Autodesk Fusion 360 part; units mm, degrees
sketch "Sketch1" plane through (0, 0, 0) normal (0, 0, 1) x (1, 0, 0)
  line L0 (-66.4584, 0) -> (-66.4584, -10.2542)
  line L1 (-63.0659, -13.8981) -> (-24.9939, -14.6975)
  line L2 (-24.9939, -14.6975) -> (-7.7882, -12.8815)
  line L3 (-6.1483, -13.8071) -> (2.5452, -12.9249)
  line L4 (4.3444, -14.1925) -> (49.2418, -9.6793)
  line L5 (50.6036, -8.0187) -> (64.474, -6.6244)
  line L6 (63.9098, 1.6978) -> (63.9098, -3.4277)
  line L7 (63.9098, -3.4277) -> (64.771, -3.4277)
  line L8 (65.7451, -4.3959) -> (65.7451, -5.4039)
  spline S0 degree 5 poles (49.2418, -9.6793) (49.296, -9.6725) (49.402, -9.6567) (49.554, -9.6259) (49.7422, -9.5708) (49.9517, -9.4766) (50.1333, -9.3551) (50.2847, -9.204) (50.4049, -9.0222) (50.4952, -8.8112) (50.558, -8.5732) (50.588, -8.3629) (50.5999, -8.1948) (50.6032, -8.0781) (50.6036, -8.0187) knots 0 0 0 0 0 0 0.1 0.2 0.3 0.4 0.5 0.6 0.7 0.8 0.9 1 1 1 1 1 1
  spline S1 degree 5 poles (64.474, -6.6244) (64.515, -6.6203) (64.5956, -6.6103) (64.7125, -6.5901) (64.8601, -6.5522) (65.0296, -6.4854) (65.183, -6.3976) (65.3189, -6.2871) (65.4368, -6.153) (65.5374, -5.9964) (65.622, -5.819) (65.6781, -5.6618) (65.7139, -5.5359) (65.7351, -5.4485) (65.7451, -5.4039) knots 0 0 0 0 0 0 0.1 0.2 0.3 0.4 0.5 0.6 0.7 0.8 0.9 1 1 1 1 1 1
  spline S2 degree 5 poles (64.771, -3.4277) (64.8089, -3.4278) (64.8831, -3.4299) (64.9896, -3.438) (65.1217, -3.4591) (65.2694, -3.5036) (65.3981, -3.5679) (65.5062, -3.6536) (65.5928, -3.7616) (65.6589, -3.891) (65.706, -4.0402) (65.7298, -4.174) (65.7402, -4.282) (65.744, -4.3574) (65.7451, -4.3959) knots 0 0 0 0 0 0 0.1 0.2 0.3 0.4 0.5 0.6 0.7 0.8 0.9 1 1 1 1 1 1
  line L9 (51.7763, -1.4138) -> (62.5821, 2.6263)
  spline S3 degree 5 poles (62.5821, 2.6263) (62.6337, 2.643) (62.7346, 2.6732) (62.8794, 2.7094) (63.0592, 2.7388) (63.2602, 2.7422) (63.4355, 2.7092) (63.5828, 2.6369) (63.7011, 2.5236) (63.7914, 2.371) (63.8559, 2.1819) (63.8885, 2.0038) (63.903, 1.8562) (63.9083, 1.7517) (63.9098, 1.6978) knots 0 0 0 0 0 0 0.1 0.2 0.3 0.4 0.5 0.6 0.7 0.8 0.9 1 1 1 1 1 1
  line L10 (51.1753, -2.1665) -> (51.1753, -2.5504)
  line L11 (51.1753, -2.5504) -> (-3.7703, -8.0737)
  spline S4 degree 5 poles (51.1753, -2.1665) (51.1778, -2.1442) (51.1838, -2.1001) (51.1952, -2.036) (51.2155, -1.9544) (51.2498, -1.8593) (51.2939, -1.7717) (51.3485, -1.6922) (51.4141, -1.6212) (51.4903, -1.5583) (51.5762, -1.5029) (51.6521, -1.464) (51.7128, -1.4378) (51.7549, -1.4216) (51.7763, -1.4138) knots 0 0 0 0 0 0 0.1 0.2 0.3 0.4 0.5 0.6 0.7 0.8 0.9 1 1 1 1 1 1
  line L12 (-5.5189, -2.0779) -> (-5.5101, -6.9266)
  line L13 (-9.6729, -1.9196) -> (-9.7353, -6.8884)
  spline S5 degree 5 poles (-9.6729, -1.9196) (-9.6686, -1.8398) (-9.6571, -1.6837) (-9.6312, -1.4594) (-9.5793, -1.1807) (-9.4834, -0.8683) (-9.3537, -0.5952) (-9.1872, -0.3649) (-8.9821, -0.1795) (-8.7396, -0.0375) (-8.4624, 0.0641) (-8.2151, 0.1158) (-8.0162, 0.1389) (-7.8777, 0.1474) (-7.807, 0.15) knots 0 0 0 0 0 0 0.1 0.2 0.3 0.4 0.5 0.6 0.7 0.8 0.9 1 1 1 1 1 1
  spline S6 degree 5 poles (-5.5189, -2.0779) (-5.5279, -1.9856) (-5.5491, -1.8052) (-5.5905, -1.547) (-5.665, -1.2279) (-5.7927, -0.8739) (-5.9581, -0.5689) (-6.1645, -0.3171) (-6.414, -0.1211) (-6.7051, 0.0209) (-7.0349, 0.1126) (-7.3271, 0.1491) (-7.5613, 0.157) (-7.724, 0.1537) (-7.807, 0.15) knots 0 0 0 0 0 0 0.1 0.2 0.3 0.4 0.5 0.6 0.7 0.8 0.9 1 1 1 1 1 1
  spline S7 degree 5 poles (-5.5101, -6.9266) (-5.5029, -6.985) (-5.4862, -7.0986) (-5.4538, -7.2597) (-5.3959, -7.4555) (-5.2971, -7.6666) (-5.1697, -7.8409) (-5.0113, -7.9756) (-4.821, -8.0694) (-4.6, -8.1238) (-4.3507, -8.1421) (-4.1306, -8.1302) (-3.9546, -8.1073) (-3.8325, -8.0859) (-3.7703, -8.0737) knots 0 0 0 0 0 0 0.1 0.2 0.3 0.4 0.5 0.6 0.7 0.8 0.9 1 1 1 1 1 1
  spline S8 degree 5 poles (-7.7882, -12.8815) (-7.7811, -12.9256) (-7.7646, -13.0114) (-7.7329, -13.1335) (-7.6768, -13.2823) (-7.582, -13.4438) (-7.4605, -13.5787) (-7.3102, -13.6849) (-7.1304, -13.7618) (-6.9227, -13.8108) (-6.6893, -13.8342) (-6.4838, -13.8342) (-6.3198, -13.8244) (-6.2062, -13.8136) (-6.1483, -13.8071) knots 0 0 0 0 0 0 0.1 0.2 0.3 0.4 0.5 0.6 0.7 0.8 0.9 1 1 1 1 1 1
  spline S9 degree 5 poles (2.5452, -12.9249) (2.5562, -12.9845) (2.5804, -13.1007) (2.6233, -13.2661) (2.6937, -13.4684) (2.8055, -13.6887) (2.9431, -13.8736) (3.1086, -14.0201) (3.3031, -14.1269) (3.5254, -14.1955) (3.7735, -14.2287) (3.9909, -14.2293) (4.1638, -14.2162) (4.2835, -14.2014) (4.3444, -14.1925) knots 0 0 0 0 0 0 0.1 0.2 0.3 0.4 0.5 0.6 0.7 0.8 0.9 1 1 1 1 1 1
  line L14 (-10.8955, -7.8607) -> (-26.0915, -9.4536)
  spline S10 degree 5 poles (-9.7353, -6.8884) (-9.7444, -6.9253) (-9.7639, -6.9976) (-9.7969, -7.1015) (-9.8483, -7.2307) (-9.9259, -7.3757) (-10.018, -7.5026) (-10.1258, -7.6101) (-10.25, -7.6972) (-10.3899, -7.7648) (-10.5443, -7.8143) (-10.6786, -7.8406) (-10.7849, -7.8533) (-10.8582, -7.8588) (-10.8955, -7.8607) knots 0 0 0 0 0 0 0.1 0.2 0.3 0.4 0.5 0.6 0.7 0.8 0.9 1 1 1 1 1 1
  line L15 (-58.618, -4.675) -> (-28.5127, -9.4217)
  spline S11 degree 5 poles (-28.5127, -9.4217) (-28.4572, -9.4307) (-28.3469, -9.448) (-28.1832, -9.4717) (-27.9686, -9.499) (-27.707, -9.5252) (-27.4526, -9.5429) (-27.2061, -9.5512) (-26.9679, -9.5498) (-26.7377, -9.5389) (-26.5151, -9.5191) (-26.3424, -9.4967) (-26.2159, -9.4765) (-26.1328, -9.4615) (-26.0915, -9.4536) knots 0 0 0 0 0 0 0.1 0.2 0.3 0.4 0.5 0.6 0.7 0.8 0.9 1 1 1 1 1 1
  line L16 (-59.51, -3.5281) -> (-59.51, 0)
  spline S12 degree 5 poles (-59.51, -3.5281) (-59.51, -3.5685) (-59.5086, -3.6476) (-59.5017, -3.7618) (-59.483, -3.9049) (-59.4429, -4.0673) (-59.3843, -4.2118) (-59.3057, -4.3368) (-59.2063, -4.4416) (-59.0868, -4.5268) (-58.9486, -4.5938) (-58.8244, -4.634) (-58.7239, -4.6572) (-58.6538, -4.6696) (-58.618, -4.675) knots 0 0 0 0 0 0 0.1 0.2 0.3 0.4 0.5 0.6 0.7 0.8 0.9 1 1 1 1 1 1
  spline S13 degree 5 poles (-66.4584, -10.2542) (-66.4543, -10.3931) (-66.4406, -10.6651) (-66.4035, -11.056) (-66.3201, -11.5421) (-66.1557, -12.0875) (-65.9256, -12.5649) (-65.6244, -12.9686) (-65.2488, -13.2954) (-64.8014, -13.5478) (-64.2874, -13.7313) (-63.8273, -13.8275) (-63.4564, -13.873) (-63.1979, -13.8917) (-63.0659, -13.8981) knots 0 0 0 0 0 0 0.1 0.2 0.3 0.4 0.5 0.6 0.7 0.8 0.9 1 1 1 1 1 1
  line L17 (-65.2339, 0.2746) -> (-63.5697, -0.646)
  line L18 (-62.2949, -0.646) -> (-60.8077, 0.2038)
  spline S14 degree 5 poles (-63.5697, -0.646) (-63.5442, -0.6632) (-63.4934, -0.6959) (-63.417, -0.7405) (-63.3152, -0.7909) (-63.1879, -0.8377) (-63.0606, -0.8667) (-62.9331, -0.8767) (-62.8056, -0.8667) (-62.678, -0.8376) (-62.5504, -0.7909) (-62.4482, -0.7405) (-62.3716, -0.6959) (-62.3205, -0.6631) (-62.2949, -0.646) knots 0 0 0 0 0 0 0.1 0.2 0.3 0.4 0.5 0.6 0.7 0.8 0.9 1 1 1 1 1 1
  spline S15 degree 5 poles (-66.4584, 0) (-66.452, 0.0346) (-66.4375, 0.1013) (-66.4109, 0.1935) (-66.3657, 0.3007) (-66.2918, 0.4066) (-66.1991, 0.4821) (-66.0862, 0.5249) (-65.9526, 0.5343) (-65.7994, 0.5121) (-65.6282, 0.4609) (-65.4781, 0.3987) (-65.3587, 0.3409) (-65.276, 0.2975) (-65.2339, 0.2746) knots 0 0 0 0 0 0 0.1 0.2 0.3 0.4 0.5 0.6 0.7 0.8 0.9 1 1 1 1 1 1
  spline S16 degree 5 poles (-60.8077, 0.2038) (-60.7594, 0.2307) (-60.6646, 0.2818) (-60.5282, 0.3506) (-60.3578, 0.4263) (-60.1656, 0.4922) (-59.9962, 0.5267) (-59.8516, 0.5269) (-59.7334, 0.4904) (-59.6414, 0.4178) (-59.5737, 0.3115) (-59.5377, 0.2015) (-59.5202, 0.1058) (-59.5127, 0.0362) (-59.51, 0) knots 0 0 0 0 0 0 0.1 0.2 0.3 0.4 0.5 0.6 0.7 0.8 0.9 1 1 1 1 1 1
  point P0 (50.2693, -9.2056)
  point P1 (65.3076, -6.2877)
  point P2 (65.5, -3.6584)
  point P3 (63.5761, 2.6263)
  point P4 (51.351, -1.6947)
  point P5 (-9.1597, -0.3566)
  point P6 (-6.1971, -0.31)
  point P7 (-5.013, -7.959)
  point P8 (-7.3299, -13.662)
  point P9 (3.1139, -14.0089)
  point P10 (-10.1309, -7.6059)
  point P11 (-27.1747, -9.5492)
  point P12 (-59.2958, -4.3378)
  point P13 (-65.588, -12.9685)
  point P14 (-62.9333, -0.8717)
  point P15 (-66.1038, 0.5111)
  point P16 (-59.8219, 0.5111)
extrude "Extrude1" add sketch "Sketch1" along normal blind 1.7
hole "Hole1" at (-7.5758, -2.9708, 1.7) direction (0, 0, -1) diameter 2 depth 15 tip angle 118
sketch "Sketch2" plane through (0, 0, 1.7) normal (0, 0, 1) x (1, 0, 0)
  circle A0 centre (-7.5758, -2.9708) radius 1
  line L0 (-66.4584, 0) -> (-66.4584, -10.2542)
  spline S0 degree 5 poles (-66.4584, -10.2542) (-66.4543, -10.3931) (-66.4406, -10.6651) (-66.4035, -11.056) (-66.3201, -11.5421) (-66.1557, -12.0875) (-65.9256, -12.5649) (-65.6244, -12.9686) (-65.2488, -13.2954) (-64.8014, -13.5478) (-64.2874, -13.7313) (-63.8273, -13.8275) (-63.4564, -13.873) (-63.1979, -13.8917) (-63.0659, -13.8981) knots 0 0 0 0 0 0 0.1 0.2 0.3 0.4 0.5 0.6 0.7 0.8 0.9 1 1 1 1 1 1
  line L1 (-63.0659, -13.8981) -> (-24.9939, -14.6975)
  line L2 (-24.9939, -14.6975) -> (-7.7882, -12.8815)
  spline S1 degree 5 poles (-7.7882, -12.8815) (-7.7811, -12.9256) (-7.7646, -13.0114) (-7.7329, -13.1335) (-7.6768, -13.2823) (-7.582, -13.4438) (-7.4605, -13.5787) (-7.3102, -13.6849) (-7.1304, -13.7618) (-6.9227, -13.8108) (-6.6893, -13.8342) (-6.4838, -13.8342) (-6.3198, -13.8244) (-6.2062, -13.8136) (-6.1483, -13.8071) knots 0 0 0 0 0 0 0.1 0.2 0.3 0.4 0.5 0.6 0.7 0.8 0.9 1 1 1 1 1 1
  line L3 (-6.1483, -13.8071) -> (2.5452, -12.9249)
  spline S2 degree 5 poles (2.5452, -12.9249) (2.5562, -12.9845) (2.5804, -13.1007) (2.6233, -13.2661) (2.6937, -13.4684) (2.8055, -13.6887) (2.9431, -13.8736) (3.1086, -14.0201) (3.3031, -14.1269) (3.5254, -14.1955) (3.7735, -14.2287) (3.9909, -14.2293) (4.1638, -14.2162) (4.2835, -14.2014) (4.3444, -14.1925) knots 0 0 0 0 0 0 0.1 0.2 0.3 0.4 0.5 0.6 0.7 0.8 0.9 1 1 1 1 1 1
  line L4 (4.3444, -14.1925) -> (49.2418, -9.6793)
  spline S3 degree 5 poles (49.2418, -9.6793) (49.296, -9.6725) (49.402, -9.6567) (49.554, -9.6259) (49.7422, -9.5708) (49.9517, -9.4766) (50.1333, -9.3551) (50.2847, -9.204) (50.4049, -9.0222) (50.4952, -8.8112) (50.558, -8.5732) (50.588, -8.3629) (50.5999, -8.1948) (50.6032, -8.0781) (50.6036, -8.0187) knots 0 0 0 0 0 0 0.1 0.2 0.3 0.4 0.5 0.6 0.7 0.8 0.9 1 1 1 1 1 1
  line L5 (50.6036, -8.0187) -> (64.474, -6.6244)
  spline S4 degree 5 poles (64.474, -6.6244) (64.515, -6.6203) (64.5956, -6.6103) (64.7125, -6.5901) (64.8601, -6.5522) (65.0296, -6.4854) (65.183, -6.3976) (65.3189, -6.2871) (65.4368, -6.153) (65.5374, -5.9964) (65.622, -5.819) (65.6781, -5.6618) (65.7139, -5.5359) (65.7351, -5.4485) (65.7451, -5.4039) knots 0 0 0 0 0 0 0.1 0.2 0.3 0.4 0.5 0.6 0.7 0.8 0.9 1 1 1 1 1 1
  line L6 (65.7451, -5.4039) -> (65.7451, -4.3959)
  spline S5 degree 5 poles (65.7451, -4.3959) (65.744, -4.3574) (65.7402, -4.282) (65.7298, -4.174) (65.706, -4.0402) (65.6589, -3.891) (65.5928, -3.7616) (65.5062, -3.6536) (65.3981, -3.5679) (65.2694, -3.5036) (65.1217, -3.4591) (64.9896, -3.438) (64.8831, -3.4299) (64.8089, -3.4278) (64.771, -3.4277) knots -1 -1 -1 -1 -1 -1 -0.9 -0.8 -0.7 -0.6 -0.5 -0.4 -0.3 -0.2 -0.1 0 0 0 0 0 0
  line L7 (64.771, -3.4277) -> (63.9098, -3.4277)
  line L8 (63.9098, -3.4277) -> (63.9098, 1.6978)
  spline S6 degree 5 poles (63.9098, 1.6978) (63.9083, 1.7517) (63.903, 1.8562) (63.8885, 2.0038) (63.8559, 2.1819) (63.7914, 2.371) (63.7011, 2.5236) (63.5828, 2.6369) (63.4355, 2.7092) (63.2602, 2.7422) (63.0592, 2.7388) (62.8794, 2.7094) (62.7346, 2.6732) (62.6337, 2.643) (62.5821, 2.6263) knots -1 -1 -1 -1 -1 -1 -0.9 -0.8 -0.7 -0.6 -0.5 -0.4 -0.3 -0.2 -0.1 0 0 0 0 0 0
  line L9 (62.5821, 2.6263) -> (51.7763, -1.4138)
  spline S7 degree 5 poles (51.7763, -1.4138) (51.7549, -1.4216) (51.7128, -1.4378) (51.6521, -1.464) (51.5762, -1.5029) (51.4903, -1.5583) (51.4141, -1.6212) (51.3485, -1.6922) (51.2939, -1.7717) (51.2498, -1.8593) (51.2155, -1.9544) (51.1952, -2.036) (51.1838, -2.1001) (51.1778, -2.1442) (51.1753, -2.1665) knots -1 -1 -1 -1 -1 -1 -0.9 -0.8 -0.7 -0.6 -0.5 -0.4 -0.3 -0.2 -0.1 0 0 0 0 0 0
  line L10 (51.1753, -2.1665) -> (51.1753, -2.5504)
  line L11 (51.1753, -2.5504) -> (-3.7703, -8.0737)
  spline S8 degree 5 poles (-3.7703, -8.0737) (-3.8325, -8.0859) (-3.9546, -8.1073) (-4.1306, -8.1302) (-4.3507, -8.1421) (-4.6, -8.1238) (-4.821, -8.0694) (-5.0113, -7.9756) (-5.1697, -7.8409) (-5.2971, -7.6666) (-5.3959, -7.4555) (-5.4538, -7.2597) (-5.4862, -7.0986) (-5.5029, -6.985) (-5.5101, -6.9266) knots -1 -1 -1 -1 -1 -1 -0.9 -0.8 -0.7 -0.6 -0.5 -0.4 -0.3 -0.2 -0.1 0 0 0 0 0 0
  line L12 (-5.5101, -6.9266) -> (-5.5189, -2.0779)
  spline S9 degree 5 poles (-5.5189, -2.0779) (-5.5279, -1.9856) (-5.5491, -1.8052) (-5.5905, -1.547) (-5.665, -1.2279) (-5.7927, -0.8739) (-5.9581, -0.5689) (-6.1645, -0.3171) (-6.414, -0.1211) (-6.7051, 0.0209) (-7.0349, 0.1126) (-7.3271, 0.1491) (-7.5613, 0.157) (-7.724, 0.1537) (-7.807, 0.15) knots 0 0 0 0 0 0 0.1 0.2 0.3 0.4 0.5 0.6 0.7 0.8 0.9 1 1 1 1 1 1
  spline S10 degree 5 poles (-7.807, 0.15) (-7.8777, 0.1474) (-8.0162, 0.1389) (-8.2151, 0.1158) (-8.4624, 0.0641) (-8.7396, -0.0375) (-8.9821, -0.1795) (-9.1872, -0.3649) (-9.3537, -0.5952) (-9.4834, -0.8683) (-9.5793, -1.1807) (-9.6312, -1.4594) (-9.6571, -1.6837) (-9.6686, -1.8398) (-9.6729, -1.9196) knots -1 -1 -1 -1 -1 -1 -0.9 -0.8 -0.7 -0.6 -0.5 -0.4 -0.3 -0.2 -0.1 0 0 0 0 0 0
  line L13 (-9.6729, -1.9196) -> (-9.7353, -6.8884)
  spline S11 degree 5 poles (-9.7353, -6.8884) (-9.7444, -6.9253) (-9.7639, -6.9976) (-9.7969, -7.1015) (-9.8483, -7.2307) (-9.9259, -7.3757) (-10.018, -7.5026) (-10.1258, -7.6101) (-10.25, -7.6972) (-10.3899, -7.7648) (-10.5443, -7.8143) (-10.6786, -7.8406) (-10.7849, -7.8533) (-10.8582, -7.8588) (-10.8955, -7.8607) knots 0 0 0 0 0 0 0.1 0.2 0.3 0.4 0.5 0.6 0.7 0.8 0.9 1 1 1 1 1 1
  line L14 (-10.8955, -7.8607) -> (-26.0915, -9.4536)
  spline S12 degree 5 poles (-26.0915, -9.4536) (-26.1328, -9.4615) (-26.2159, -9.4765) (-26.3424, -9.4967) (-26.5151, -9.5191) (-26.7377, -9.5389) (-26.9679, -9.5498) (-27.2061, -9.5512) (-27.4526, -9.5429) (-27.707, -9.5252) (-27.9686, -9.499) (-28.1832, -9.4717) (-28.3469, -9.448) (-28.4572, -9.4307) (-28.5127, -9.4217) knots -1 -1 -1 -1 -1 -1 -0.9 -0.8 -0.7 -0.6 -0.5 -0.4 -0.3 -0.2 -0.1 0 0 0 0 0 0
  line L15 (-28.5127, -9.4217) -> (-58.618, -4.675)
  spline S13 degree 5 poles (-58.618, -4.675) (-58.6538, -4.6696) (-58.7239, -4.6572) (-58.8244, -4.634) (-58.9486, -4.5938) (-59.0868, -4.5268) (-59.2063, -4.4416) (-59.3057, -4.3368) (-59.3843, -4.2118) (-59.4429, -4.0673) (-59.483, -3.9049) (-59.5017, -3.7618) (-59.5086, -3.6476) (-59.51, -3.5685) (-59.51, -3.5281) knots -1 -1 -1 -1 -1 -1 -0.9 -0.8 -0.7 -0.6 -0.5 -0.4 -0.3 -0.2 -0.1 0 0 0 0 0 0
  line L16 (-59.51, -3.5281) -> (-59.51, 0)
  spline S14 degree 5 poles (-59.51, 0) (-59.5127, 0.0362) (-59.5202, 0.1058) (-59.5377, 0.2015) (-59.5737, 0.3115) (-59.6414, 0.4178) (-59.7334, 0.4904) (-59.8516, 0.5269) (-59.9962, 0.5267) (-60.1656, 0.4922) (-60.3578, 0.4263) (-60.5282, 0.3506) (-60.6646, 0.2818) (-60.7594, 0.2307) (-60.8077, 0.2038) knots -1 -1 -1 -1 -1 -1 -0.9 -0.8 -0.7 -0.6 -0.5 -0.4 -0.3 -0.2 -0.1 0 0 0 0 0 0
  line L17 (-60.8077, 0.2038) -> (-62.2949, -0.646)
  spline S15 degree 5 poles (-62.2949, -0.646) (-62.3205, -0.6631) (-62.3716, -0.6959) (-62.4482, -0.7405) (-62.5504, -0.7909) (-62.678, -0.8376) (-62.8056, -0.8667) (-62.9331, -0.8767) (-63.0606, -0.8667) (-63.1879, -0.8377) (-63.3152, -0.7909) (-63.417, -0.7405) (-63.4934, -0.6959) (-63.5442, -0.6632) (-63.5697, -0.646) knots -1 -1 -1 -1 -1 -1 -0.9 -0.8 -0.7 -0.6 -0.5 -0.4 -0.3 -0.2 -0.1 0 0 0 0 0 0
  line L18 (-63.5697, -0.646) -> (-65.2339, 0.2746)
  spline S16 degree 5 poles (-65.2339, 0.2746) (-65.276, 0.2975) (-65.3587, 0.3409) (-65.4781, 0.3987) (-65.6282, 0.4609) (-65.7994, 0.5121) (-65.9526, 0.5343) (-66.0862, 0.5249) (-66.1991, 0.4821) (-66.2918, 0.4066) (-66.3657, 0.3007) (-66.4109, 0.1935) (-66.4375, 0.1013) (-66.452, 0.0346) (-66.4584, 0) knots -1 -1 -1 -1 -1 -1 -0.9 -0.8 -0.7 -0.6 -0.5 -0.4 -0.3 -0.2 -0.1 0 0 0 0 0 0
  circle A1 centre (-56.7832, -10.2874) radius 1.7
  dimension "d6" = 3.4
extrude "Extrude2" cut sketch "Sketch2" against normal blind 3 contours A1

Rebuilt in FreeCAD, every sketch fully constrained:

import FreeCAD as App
import Part
import Sketcher
from FreeCAD import Vector

doc = App.newDocument("Part")
body = doc.addObject("PartDesign::Body", "Body")

# Sketch on XY plane
sketch1 = body.newObject("Sketcher::SketchObject", "Sketch")
sketch1.AttachmentSupport = (doc.getObject("XY_Plane"), [""])
sketch1.MapMode = "FlatFace"
sketch1.addGeometry(Part.BSplineCurve([Vector(-66.4584, 0, 0), Vector(-66.452, 0.0346, 0), Vector(-66.4375, 0.1013, 0), Vector(-66.4109, 0.1935, 0), Vector(-66.3657, 0.3007, 0), Vector(-66.2918, 0.4066, 0), Vector(-66.1991, 0.4821, 0), Vector(-66.0862, 0.5249, 0), Vector(-65.9526, 0.5343, 0), Vector(-65.7994, 0.5121, 0), Vector(-65.6282, 0.4609, 0), Vector(-65.4781, 0.3987, 0), Vector(-65.3587, 0.3409, 0), Vector(-65.276, 0.2975, 0), Vector(-65.2339, 0.2746, 0)], [6, 1, 1, 1, 1, 1, 1, 1, 1, 1, 6], [0, 0.1, 0.2, 0.3, 0.4, 0.5, 0.6, 0.7, 0.8, 0.9, 1], False, 5, [1, 1, 1, 1, 1, 1, 1, 1, 1, 1, 1, 1, 1, 1, 1], False), False)
sketch1.addGeometry(Part.LineSegment(Vector(-66.4584, 0, 0), Vector(-66.4584, -10.2542, 0)), False)
sketch1.addGeometry(Part.BSplineCurve([Vector(-66.4584, -10.2542, 0), Vector(-66.4543, -10.3931, 0), Vector(-66.4406, -10.6651, 0), Vector(-66.4035, -11.056, 0), Vector(-66.3201, -11.5421, 0), Vector(-66.1557, -12.0875, 0), Vector(-65.9256, -12.5649, 0), Vector(-65.6244, -12.9686, 0), Vector(-65.2488, -13.2954, 0), Vector(-64.8014, -13.5478, 0), Vector(-64.2874, -13.7313, 0), Vector(-63.8273, -13.8275, 0), Vector(-63.4564, -13.873, 0), Vector(-63.1979, -13.8917, 0), Vector(-63.0659, -13.8981, 0)], [6, 1, 1, 1, 1, 1, 1, 1, 1, 1, 6], [0, 0.1, 0.2, 0.3, 0.4, 0.5, 0.6, 0.7, 0.8, 0.9, 1], False, 5, [1, 1, 1, 1, 1, 1, 1, 1, 1, 1, 1, 1, 1, 1, 1], False), False)
sketch1.addGeometry(Part.LineSegment(Vector(-63.0659, -13.8981, 0), Vector(-24.9939, -14.6975, 0)), False)
sketch1.addGeometry(Part.LineSegment(Vector(-24.9939, -14.6975, 0), Vector(-7.7882, -12.8815, 0)), False)
sketch1.addGeometry(Part.BSplineCurve([Vector(-7.7882, -12.8815, 0), Vector(-7.7811, -12.9256, 0), Vector(-7.7646, -13.0114, 0), Vector(-7.7329, -13.1335, 0), Vector(-7.6768, -13.2823, 0), Vector(-7.582, -13.4438, 0), Vector(-7.4605, -13.5787, 0), Vector(-7.3102, -13.6849, 0), Vector(-7.1304, -13.7618, 0), Vector(-6.9227, -13.8108, 0), Vector(-6.6893, -13.8342, 0), Vector(-6.4838, -13.8342, 0), Vector(-6.3198, -13.8244, 0), Vector(-6.2062, -13.8136, 0), Vector(-6.1483, -13.8071, 0)], [6, 1, 1, 1, 1, 1, 1, 1, 1, 1, 6], [0, 0.1, 0.2, 0.3, 0.4, 0.5, 0.6, 0.7, 0.8, 0.9, 1], False, 5, [1, 1, 1, 1, 1, 1, 1, 1, 1, 1, 1, 1, 1, 1, 1], False), False)
sketch1.addGeometry(Part.LineSegment(Vector(-6.1483, -13.8071, 0), Vector(2.5452, -12.9249, 0)), False)
sketch1.addGeometry(Part.BSplineCurve([Vector(2.5452, -12.9249, 0), Vector(2.5562, -12.9845, 0), Vector(2.5804, -13.1007, 0), Vector(2.6233, -13.2661, 0), Vector(2.6937, -13.4684, 0), Vector(2.8055, -13.6887, 0), Vector(2.9431, -13.8736, 0), Vector(3.1086, -14.0201, 0), Vector(3.3031, -14.1269, 0), Vector(3.5254, -14.1955, 0), Vector(3.7735, -14.2287, 0), Vector(3.9909, -14.2293, 0), Vector(4.1638, -14.2162, 0), Vector(4.2835, -14.2014, 0), Vector(4.3444, -14.1925, 0)], [6, 1, 1, 1, 1, 1, 1, 1, 1, 1, 6], [0, 0.1, 0.2, 0.3, 0.4, 0.5, 0.6, 0.7, 0.8, 0.9, 1], False, 5, [1, 1, 1, 1, 1, 1, 1, 1, 1, 1, 1, 1, 1, 1, 1], False), False)
sketch1.addGeometry(Part.LineSegment(Vector(4.3444, -14.1925, 0), Vector(49.2418, -9.6793, 0)), False)
sketch1.addGeometry(Part.BSplineCurve([Vector(49.2418, -9.6793, 0), Vector(49.296, -9.6725, 0), Vector(49.402, -9.6567, 0), Vector(49.554, -9.6259, 0), Vector(49.7422, -9.5708, 0), Vector(49.9517, -9.4766, 0), Vector(50.1333, -9.3551, 0), Vector(50.2847, -9.204, 0), Vector(50.4049, -9.0222, 0), Vector(50.4952, -8.8112, 0), Vector(50.558, -8.5732, 0), Vector(50.588, -8.3629, 0), Vector(50.5999, -8.1948, 0), Vector(50.6032, -8.0781, 0), Vector(50.6036, -8.0187, 0)], [6, 1, 1, 1, 1, 1, 1, 1, 1, 1, 6], [0, 0.1, 0.2, 0.3, 0.4, 0.5, 0.6, 0.7, 0.8, 0.9, 1], False, 5, [1, 1, 1, 1, 1, 1, 1, 1, 1, 1, 1, 1, 1, 1, 1], False), False)
sketch1.addGeometry(Part.LineSegment(Vector(50.6036, -8.0187, 0), Vector(64.474, -6.6244, 0)), False)
sketch1.addGeometry(Part.BSplineCurve([Vector(64.474, -6.6244, 0), Vector(64.515, -6.6203, 0), Vector(64.5956, -6.6103, 0), Vector(64.7125, -6.5901, 0), Vector(64.8601, -6.5522, 0), Vector(65.0296, -6.4854, 0), Vector(65.183, -6.3976, 0), Vector(65.3189, -6.2871, 0), Vector(65.4368, -6.153, 0), Vector(65.5374, -5.9964, 0), Vector(65.622, -5.819, 0), Vector(65.6781, -5.6618, 0), Vector(65.7139, -5.5359, 0), Vector(65.7351, -5.4485, 0), Vector(65.7451, -5.4039, 0)], [6, 1, 1, 1, 1, 1, 1, 1, 1, 1, 6], [0, 0.1, 0.2, 0.3, 0.4, 0.5, 0.6, 0.7, 0.8, 0.9, 1], False, 5, [1, 1, 1, 1, 1, 1, 1, 1, 1, 1, 1, 1, 1, 1, 1], False), False)
sketch1.addGeometry(Part.LineSegment(Vector(65.7451, -5.4039, 0), Vector(65.7451, -4.3959, 0)), False)
sketch1.addGeometry(Part.BSplineCurve([Vector(64.771, -3.4277, 0), Vector(64.8089, -3.4278, 0), Vector(64.8831, -3.4299, 0), Vector(64.9896, -3.438, 0), Vector(65.1217, -3.4591, 0), Vector(65.2694, -3.5036, 0), Vector(65.3981, -3.5679, 0), Vector(65.5062, -3.6536, 0), Vector(65.5928, -3.7616, 0), Vector(65.6589, -3.891, 0), Vector(65.706, -4.0402, 0), Vector(65.7298, -4.174, 0), Vector(65.7402, -4.282, 0), Vector(65.744, -4.3574, 0), Vector(65.7451, -4.3959, 0)], [6, 1, 1, 1, 1, 1, 1, 1, 1, 1, 6], [0, 0.1, 0.2, 0.3, 0.4, 0.5, 0.6, 0.7, 0.8, 0.9, 1], False, 5, [1, 1, 1, 1, 1, 1, 1, 1, 1, 1, 1, 1, 1, 1, 1], False), False)
sketch1.addGeometry(Part.LineSegment(Vector(64.771, -3.4277, 0), Vector(63.9098, -3.4277, 0)), False)
sketch1.addGeometry(Part.LineSegment(Vector(63.9098, -3.4277, 0), Vector(63.9098, 1.6978, 0)), False)
sketch1.addGeometry(Part.BSplineCurve([Vector(62.5821, 2.6263, 0), Vector(62.6337, 2.643, 0), Vector(62.7346, 2.6732, 0), Vector(62.8794, 2.7094, 0), Vector(63.0592, 2.7388, 0), Vector(63.2602, 2.7422, 0), Vector(63.4355, 2.7092, 0), Vector(63.5828, 2.6369, 0), Vector(63.7011, 2.5236, 0), Vector(63.7914, 2.371, 0), Vector(63.8559, 2.1819, 0), Vector(63.8885, 2.0038, 0), Vector(63.903, 1.8562, 0), Vector(63.9083, 1.7517, 0), Vector(63.9098, 1.6978, 0)], [6, 1, 1, 1, 1, 1, 1, 1, 1, 1, 6], [0, 0.1, 0.2, 0.3, 0.4, 0.5, 0.6, 0.7, 0.8, 0.9, 1], False, 5, [1, 1, 1, 1, 1, 1, 1, 1, 1, 1, 1, 1, 1, 1, 1], False), False)
sketch1.addGeometry(Part.LineSegment(Vector(62.5821, 2.6263, 0), Vector(51.7763, -1.4138, 0)), False)
sketch1.addGeometry(Part.BSplineCurve([Vector(51.1753, -2.1665, 0), Vector(51.1778, -2.1442, 0), Vector(51.1838, -2.1001, 0), Vector(51.1952, -2.036, 0), Vector(51.2155, -1.9544, 0), Vector(51.2498, -1.8593, 0), Vector(51.2939, -1.7717, 0), Vector(51.3485, -1.6922, 0), Vector(51.4141, -1.6212, 0), Vector(51.4903, -1.5583, 0), Vector(51.5762, -1.5029, 0), Vector(51.6521, -1.464, 0), Vector(51.7128, -1.4378, 0), Vector(51.7549, -1.4216, 0), Vector(51.7763, -1.4138, 0)], [6, 1, 1, 1, 1, 1, 1, 1, 1, 1, 6], [0, 0.1, 0.2, 0.3, 0.4, 0.5, 0.6, 0.7, 0.8, 0.9, 1], False, 5, [1, 1, 1, 1, 1, 1, 1, 1, 1, 1, 1, 1, 1, 1, 1], False), False)
sketch1.addGeometry(Part.LineSegment(Vector(51.1753, -2.1665, 0), Vector(51.1753, -2.5504, 0)), False)
sketch1.addGeometry(Part.LineSegment(Vector(51.1753, -2.5504, 0), Vector(-3.7703, -8.0737, 0)), False)
sketch1.addGeometry(Part.BSplineCurve([Vector(-5.5101, -6.9266, 0), Vector(-5.5029, -6.985, 0), Vector(-5.4862, -7.0986, 0), Vector(-5.4538, -7.2597, 0), Vector(-5.3959, -7.4555, 0), Vector(-5.2971, -7.6666, 0), Vector(-5.1697, -7.8409, 0), Vector(-5.0113, -7.9756, 0), Vector(-4.821, -8.0694, 0), Vector(-4.6, -8.1238, 0), Vector(-4.3507, -8.1421, 0), Vector(-4.1306, -8.1302, 0), Vector(-3.9546, -8.1073, 0), Vector(-3.8325, -8.0859, 0), Vector(-3.7703, -8.0737, 0)], [6, 1, 1, 1, 1, 1, 1, 1, 1, 1, 6], [0, 0.1, 0.2, 0.3, 0.4, 0.5, 0.6, 0.7, 0.8, 0.9, 1], False, 5, [1, 1, 1, 1, 1, 1, 1, 1, 1, 1, 1, 1, 1, 1, 1], False), False)
sketch1.addGeometry(Part.LineSegment(Vector(-5.5101, -6.9266, 0), Vector(-5.5189, -2.0779, 0)), False)
sketch1.addGeometry(Part.BSplineCurve([Vector(-5.5189, -2.0779, 0), Vector(-5.5279, -1.9856, 0), Vector(-5.5491, -1.8052, 0), Vector(-5.5905, -1.547, 0), Vector(-5.665, -1.2279, 0), Vector(-5.7927, -0.8739, 0), Vector(-5.9581, -0.5689, 0), Vector(-6.1645, -0.3171, 0), Vector(-6.414, -0.1211, 0), Vector(-6.7051, 0.0209, 0), Vector(-7.0349, 0.1126, 0), Vector(-7.3271, 0.1491, 0), Vector(-7.5613, 0.157, 0), Vector(-7.724, 0.1537, 0), Vector(-7.807, 0.15, 0)], [6, 1, 1, 1, 1, 1, 1, 1, 1, 1, 6], [0, 0.1, 0.2, 0.3, 0.4, 0.5, 0.6, 0.7, 0.8, 0.9, 1], False, 5, [1, 1, 1, 1, 1, 1, 1, 1, 1, 1, 1, 1, 1, 1, 1], False), False)
sketch1.addGeometry(Part.BSplineCurve([Vector(-9.6729, -1.9196, 0), Vector(-9.6686, -1.8398, 0), Vector(-9.6571, -1.6837, 0), Vector(-9.6312, -1.4594, 0), Vector(-9.5793, -1.1807, 0), Vector(-9.4834, -0.8683, 0), Vector(-9.3537, -0.5952, 0), Vector(-9.1872, -0.3649, 0), Vector(-8.9821, -0.1795, 0), Vector(-8.7396, -0.0375, 0), Vector(-8.4624, 0.0641, 0), Vector(-8.2151, 0.1158, 0), Vector(-8.0162, 0.1389, 0), Vector(-7.8777, 0.1474, 0), Vector(-7.807, 0.15, 0)], [6, 1, 1, 1, 1, 1, 1, 1, 1, 1, 6], [0, 0.1, 0.2, 0.3, 0.4, 0.5, 0.6, 0.7, 0.8, 0.9, 1], False, 5, [1, 1, 1, 1, 1, 1, 1, 1, 1, 1, 1, 1, 1, 1, 1], False), False)
sketch1.addGeometry(Part.LineSegment(Vector(-9.6729, -1.9196, 0), Vector(-9.7353, -6.8884, 0)), False)
sketch1.addGeometry(Part.BSplineCurve([Vector(-9.7353, -6.8884, 0), Vector(-9.7444, -6.9253, 0), Vector(-9.7639, -6.9976, 0), Vector(-9.7969, -7.1015, 0), Vector(-9.8483, -7.2307, 0), Vector(-9.9259, -7.3757, 0), Vector(-10.018, -7.5026, 0), Vector(-10.1258, -7.6101, 0), Vector(-10.25, -7.6972, 0), Vector(-10.3899, -7.7648, 0), Vector(-10.5443, -7.8143, 0), Vector(-10.6786, -7.8406, 0), Vector(-10.7849, -7.8533, 0), Vector(-10.8582, -7.8588, 0), Vector(-10.8955, -7.8607, 0)], [6, 1, 1, 1, 1, 1, 1, 1, 1, 1, 6], [0, 0.1, 0.2, 0.3, 0.4, 0.5, 0.6, 0.7, 0.8, 0.9, 1], False, 5, [1, 1, 1, 1, 1, 1, 1, 1, 1, 1, 1, 1, 1, 1, 1], False), False)
sketch1.addGeometry(Part.LineSegment(Vector(-10.8955, -7.8607, 0), Vector(-26.0915, -9.4536, 0)), False)
sketch1.addGeometry(Part.BSplineCurve([Vector(-28.5127, -9.4217, 0), Vector(-28.4572, -9.4307, 0), Vector(-28.3469, -9.448, 0), Vector(-28.1832, -9.4717, 0), Vector(-27.9686, -9.499, 0), Vector(-27.707, -9.5252, 0), Vector(-27.4526, -9.5429, 0), Vector(-27.2061, -9.5512, 0), Vector(-26.9679, -9.5498, 0), Vector(-26.7377, -9.5389, 0), Vector(-26.5151, -9.5191, 0), Vector(-26.3424, -9.4967, 0), Vector(-26.2159, -9.4765, 0), Vector(-26.1328, -9.4615, 0), Vector(-26.0915, -9.4536, 0)], [6, 1, 1, 1, 1, 1, 1, 1, 1, 1, 6], [0, 0.1, 0.2, 0.3, 0.4, 0.5, 0.6, 0.7, 0.8, 0.9, 1], False, 5, [1, 1, 1, 1, 1, 1, 1, 1, 1, 1, 1, 1, 1, 1, 1], False), False)
sketch1.addGeometry(Part.LineSegment(Vector(-28.5127, -9.4217, 0), Vector(-58.618, -4.675, 0)), False)
sketch1.addGeometry(Part.BSplineCurve([Vector(-59.51, -3.5281, 0), Vector(-59.51, -3.5685, 0), Vector(-59.5086, -3.6476, 0), Vector(-59.5017, -3.7618, 0), Vector(-59.483, -3.9049, 0), Vector(-59.4429, -4.0673, 0), Vector(-59.3843, -4.2118, 0), Vector(-59.3057, -4.3368, 0), Vector(-59.2063, -4.4416, 0), Vector(-59.0868, -4.5268, 0), Vector(-58.9486, -4.5938, 0), Vector(-58.8244, -4.634, 0), Vector(-58.7239, -4.6572, 0), Vector(-58.6538, -4.6696, 0), Vector(-58.618, -4.675, 0)], [6, 1, 1, 1, 1, 1, 1, 1, 1, 1, 6], [0, 0.1, 0.2, 0.3, 0.4, 0.5, 0.6, 0.7, 0.8, 0.9, 1], False, 5, [1, 1, 1, 1, 1, 1, 1, 1, 1, 1, 1, 1, 1, 1, 1], False), False)
sketch1.addGeometry(Part.LineSegment(Vector(-59.51, -3.5281, 0), Vector(-59.51, 0, 0)), False)
sketch1.addGeometry(Part.BSplineCurve([Vector(-60.8077, 0.2038, 0), Vector(-60.7594, 0.2307, 0), Vector(-60.6646, 0.2818, 0), Vector(-60.5282, 0.3506, 0), Vector(-60.3578, 0.4263, 0), Vector(-60.1656, 0.4922, 0), Vector(-59.9962, 0.5267, 0), Vector(-59.8516, 0.5269, 0), Vector(-59.7334, 0.4904, 0), Vector(-59.6414, 0.4178, 0), Vector(-59.5737, 0.3115, 0), Vector(-59.5377, 0.2015, 0), Vector(-59.5202, 0.1058, 0), Vector(-59.5127, 0.0362, 0), Vector(-59.51, 0, 0)], [6, 1, 1, 1, 1, 1, 1, 1, 1, 1, 6], [0, 0.1, 0.2, 0.3, 0.4, 0.5, 0.6, 0.7, 0.8, 0.9, 1], False, 5, [1, 1, 1, 1, 1, 1, 1, 1, 1, 1, 1, 1, 1, 1, 1], False), False)
sketch1.addGeometry(Part.LineSegment(Vector(-60.8077, 0.2038, 0), Vector(-62.2949, -0.646, 0)), False)
sketch1.addGeometry(Part.BSplineCurve([Vector(-63.5697, -0.646, 0), Vector(-63.5442, -0.6632, 0), Vector(-63.4934, -0.6959, 0), Vector(-63.417, -0.7405, 0), Vector(-63.3152, -0.7909, 0), Vector(-63.1879, -0.8377, 0), Vector(-63.0606, -0.8667, 0), Vector(-62.9331, -0.8767, 0), Vector(-62.8056, -0.8667, 0), Vector(-62.678, -0.8376, 0), Vector(-62.5504, -0.7909, 0), Vector(-62.4482, -0.7405, 0), Vector(-62.3716, -0.6959, 0), Vector(-62.3205, -0.6631, 0), Vector(-62.2949, -0.646, 0)], [6, 1, 1, 1, 1, 1, 1, 1, 1, 1, 6], [0, 0.1, 0.2, 0.3, 0.4, 0.5, 0.6, 0.7, 0.8, 0.9, 1], False, 5, [1, 1, 1, 1, 1, 1, 1, 1, 1, 1, 1, 1, 1, 1, 1], False), False)
sketch1.addGeometry(Part.LineSegment(Vector(-63.5697, -0.646, 0), Vector(-65.2339, 0.2746, 0)), False)
sketch1.addConstraint(Sketcher.Constraint("Block", 0))
sketch1.addConstraint(Sketcher.Constraint("Block", 2))
sketch1.addConstraint(Sketcher.Constraint("Block", 5))
sketch1.addConstraint(Sketcher.Constraint("Block", 7))
sketch1.addConstraint(Sketcher.Constraint("Block", 9))
sketch1.addConstraint(Sketcher.Constraint("Block", 11))
sketch1.addConstraint(Sketcher.Constraint("Block", 13))
sketch1.addConstraint(Sketcher.Constraint("Block", 16))
sketch1.addConstraint(Sketcher.Constraint("Block", 18))
sketch1.addConstraint(Sketcher.Constraint("Block", 21))
sketch1.addConstraint(Sketcher.Constraint("Block", 23))
sketch1.addConstraint(Sketcher.Constraint("Block", 24))
sketch1.addConstraint(Sketcher.Constraint("Block", 26))
sketch1.addConstraint(Sketcher.Constraint("Block", 28))
sketch1.addConstraint(Sketcher.Constraint("Block", 30))
sketch1.addConstraint(Sketcher.Constraint("Block", 32))
sketch1.addConstraint(Sketcher.Constraint("Block", 34))
sketch1.addConstraint(Sketcher.Constraint("Coincident", 0, 1, 1, 1))
sketch1.addConstraint(Sketcher.Constraint("Coincident", 1, 2, 2, 1))
sketch1.addConstraint(Sketcher.Constraint("Coincident", 2, 2, 3, 1))
sketch1.addConstraint(Sketcher.Constraint("Coincident", 3, 2, 4, 1))
sketch1.addConstraint(Sketcher.Constraint("Coincident", 4, 2, 5, 1))
sketch1.addConstraint(Sketcher.Constraint("Coincident", 5, 2, 6, 1))
sketch1.addConstraint(Sketcher.Constraint("Coincident", 6, 2, 7, 1))
sketch1.addConstraint(Sketcher.Constraint("Coincident", 7, 2, 8, 1))
sketch1.addConstraint(Sketcher.Constraint("Coincident", 8, 2, 9, 1))
sketch1.addConstraint(Sketcher.Constraint("Coincident", 9, 2, 10, 1))
sketch1.addConstraint(Sketcher.Constraint("Coincident", 10, 2, 11, 1))
sketch1.addConstraint(Sketcher.Constraint("Coincident", 11, 2, 12, 1))
sketch1.addConstraint(Sketcher.Constraint("Coincident", 12, 2, 13, 2))
sketch1.addConstraint(Sketcher.Constraint("Coincident", 13, 1, 14, 1))
sketch1.addConstraint(Sketcher.Constraint("Coincident", 14, 2, 15, 1))
sketch1.addConstraint(Sketcher.Constraint("Coincident", 15, 2, 16, 2))
sketch1.addConstraint(Sketcher.Constraint("Coincident", 16, 1, 17, 1))
sketch1.addConstraint(Sketcher.Constraint("Coincident", 17, 2, 18, 2))
sketch1.addConstraint(Sketcher.Constraint("Coincident", 18, 1, 19, 1))
sketch1.addConstraint(Sketcher.Constraint("Coincident", 19, 2, 20, 1))
sketch1.addConstraint(Sketcher.Constraint("Coincident", 20, 2, 21, 2))
sketch1.addConstraint(Sketcher.Constraint("Coincident", 21, 1, 22, 1))
sketch1.addConstraint(Sketcher.Constraint("Coincident", 22, 2, 23, 1))
sketch1.addConstraint(Sketcher.Constraint("Coincident", 24, 1, 25, 1))
sketch1.addConstraint(Sketcher.Constraint("Coincident", 25, 2, 26, 1))
sketch1.addConstraint(Sketcher.Constraint("Coincident", 26, 2, 27, 1))
sketch1.addConstraint(Sketcher.Constraint("Coincident", 27, 2, 28, 2))
sketch1.addConstraint(Sketcher.Constraint("Coincident", 28, 1, 29, 1))
sketch1.addConstraint(Sketcher.Constraint("Coincident", 29, 2, 30, 2))
sketch1.addConstraint(Sketcher.Constraint("Coincident", 30, 1, 31, 1))
sketch1.addConstraint(Sketcher.Constraint("Coincident", 31, 2, 32, 2))
sketch1.addConstraint(Sketcher.Constraint("Coincident", 32, 1, 33, 1))
sketch1.addConstraint(Sketcher.Constraint("Coincident", 33, 2, 34, 2))
sketch1.addConstraint(Sketcher.Constraint("Coincident", 34, 1, 35, 1))
sketch1.addConstraint(Sketcher.Constraint("Coincident", 35, 2, 0, 2))
sketch1.addConstraint(Sketcher.Constraint("Horizontal", 14))
sketch1.addConstraint(Sketcher.Constraint("Vertical", 15))
sketch1.addConstraint(Sketcher.Constraint("Vertical", 19))
sketch1.addConstraint(Sketcher.Constraint("DistanceY", 19, 2, 19, 1, 0.384))
sketch1.addConstraint(Sketcher.Constraint("DistanceX", 3, 2, -1, 1, 24.994))
sketch1.addConstraint(Sketcher.Constraint("DistanceY", 3, 2, 4, 2, 1.816))
pad1 = body.newObject("PartDesign::Pad", "Pad")
pad1.Profile = sketch1
pad1.Length = 1.7

# Sketch on XY plane
sketch2 = body.newObject("Sketcher::SketchObject", "Sketch001")
sketch2.AttachmentSupport = (doc.getObject("XY_Plane"), [""])
sketch2.MapMode = "FlatFace"
sketch2.AttachmentOffset = App.Placement(Vector(0, 0, 1.7), App.Rotation())
sketch2.addGeometry(Part.Circle(Vector(-7.6, -3, 0), Vector(0, 0, 1), 1), False)
sketch2.addConstraint(Sketcher.Constraint("Diameter", 0, 2.0))
sketch2.addConstraint(Sketcher.Constraint("DistanceX", 0, 3, -1, 1, 7.5758))
sketch2.addConstraint(Sketcher.Constraint("DistanceY", 0, 3, -1, 1, 2.9708))
doc.recompute()
hole = body.newObject("PartDesign::Hole", "Hole")
hole.Profile = sketch2
hole.ThreadType = "None"
hole.Diameter = 2
hole.DepthType = "Dimension"
hole.Depth = 15
hole.DrillPoint = "Angled"
hole.DrillPointAngle = 118

# Sketch on XY plane
sketch3 = body.newObject("Sketcher::SketchObject", "Sketch002")
sketch3.AttachmentSupport = (doc.getObject("XY_Plane"), [""])
sketch3.MapMode = "FlatFace"
sketch3.AttachmentOffset = App.Placement(Vector(0, 0, 1.7), App.Rotation())
sketch3.addGeometry(Part.Circle(Vector(-56.8, -10.3, 0), Vector(0, 0, 1), 1.7), False)
sketch3.addConstraint(Sketcher.Constraint("Diameter", 0, 3.4))
sketch3.addConstraint(Sketcher.Constraint("DistanceX", 0, 3, -1, 1, 56.7832))
sketch3.addConstraint(Sketcher.Constraint("DistanceY", 0, 3, -1, 1, 10.2874))
pocket1 = body.newObject("PartDesign::Pocket", "Pocket")
pocket1.Profile = sketch3
pocket1.Length = 3

doc.recompute()
